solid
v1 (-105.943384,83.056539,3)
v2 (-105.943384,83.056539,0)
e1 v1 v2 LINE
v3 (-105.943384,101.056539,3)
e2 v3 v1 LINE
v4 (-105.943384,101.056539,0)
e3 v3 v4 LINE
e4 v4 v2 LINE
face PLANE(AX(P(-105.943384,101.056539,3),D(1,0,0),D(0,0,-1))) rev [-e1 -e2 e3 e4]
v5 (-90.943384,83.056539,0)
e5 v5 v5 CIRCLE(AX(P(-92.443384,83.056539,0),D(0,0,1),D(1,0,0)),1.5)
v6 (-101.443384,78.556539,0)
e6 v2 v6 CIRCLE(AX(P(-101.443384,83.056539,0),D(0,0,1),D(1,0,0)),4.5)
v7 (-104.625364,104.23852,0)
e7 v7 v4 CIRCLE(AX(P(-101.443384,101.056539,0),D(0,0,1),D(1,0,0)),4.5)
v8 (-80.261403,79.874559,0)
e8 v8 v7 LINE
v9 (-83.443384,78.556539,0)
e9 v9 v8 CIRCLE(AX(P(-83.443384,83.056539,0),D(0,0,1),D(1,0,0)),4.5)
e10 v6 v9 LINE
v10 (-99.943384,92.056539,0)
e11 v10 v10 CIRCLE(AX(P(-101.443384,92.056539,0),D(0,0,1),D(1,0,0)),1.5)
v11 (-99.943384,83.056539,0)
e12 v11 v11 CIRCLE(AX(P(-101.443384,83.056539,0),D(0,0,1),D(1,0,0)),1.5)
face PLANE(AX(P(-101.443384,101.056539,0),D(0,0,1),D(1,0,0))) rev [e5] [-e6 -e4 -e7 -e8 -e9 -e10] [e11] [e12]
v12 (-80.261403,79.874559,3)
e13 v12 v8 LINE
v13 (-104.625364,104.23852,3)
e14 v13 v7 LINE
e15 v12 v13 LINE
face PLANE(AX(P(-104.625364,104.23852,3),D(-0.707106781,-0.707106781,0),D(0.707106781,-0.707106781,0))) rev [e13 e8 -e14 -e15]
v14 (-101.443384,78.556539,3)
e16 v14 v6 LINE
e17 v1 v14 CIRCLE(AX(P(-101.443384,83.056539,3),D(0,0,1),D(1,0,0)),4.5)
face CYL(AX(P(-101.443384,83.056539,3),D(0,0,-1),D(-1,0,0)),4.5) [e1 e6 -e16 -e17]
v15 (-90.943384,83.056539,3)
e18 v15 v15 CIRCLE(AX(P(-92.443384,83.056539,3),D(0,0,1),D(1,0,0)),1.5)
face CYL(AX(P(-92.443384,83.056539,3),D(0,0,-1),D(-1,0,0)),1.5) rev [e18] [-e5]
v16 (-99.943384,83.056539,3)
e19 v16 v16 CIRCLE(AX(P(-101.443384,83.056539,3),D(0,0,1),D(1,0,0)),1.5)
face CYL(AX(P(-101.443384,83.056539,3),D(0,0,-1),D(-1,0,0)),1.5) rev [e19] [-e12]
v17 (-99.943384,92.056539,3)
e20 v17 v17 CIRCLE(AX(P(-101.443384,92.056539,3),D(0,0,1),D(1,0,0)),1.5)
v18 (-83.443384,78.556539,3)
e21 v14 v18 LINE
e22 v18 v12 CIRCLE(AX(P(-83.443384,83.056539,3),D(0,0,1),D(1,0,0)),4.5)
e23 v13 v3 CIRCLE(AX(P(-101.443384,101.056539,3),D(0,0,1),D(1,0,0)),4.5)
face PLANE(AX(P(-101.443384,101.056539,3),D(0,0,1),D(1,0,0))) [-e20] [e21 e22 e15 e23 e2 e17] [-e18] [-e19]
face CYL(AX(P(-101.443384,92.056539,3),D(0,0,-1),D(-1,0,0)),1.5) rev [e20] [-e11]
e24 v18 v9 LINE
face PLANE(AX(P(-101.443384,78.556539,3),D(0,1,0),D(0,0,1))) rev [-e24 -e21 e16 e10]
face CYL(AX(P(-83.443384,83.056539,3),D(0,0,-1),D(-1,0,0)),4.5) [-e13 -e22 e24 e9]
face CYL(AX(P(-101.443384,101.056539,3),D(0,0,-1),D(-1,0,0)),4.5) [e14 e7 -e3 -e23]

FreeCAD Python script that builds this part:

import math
import FreeCAD as App
import Part
import Sketcher
from FreeCAD import Vector
Q = App.Units.Quantity

doc = App.newDocument("Part")
body = doc.addObject("PartDesign::Body", "Body")

# Sketch on XY plane
sketch1 = doc.addObject("Sketcher::SketchObject", "Sketch")
body.addObject(sketch1)
sketch1.AttachmentSupport = (doc.XY_Plane, [""])
sketch1.MapMode = "FlatFace"
sketch1.addGeometry([
    Part.LineSegment(Vector(-105.9, 101.1, 0), Vector(-105.9, 83.1, 0)),  # 0
    Part.ArcOfCircle(Part.Circle(Vector(-101.4, 83.1, 0), Vector(0, 0, 1), 4.5), math.radians(-180), math.radians(-90)),  # 1
    Part.LineSegment(Vector(-101.4, 78.6, 0), Vector(-83.4, 78.6, 0)),  # 2
    Part.ArcOfCircle(Part.Circle(Vector(-83.4, 83.1, 0), Vector(0, 0, 1), 4.5), math.radians(-90), math.radians(-45)),  # 3
    Part.LineSegment(Vector(-80.3, 79.9, 0), Vector(-104.6, 104.2, 0)),  # 4
    Part.ArcOfCircle(Part.Circle(Vector(-101.4, 101.1, 0), Vector(0, 0, 1), 4.5), math.radians(135), math.radians(180)),  # 5
    Part.Circle(Vector(-101.4, 83.1, 0), Vector(0, 0, 1), 1.5),  # 6
    Part.Circle(Vector(-92.4, 83.1, 0), Vector(0, 0, 1), 1.5),  # 7
    Part.Circle(Vector(-101.4, 92.1, 0), Vector(0, 0, 1), 1.5),  # 8
], False)
sketch1.addConstraint([
    Sketcher.Constraint("Tangent", 0, 2, 1, 1),
    Sketcher.Constraint("Tangent", 1, 2, 2, 1),
    Sketcher.Constraint("Tangent", 2, 2, 3, 1),
    Sketcher.Constraint("Coincident", 3, 2, 4, 1),
    Sketcher.Constraint("Coincident", 4, 2, 5, 1),
    Sketcher.Constraint("Tangent", 5, 2, 0, 1),
    Sketcher.Constraint("Vertical", 0),
    Sketcher.Constraint("Horizontal", 2),
    Sketcher.Constraint("Coincident", 6, 3, 1, 3),
    Sketcher.Constraint("Equal", 1, 3),
    Sketcher.Constraint("Equal", 3, 5),
    Sketcher.Constraint("Equal", 6, 7),
    Sketcher.Constraint("Equal", 7, 8),
    Sketcher.Constraint("Horizontal", 6, 3, 7, 3),
    Sketcher.Constraint("Vertical", 6, 3, 8, 3),
    Sketcher.Constraint("Equal", 2, 0),
    Sketcher.Constraint("Diameter", 6, 3.0),
    Sketcher.Constraint("Radius", 1, 4.5),
    Sketcher.Constraint("DistanceX", 2, 1, 2, 2, 18.0),
    Sketcher.Constraint("Angle", 4, Q("135 deg")),
    Sketcher.Constraint("DistanceX", 1, 3, 7, 3, 9.0),
    Sketcher.Constraint("DistanceY", 1, 3, 8, 3, 9.0),
    Sketcher.Constraint("DistanceY", -1, 1, 1, 3, 83.056539),
    Sketcher.Constraint("DistanceY", -1, 1, 3, 2, 79.874559),
    Sketcher.Constraint("DistanceX", 1, 3, -1, 1, 101.443384),
])
pad1 = doc.addObject("PartDesign::Pad", "Pad")
body.addObject(pad1)
pad1.Profile = sketch1
pad1.Length = 3

doc.recompute()
